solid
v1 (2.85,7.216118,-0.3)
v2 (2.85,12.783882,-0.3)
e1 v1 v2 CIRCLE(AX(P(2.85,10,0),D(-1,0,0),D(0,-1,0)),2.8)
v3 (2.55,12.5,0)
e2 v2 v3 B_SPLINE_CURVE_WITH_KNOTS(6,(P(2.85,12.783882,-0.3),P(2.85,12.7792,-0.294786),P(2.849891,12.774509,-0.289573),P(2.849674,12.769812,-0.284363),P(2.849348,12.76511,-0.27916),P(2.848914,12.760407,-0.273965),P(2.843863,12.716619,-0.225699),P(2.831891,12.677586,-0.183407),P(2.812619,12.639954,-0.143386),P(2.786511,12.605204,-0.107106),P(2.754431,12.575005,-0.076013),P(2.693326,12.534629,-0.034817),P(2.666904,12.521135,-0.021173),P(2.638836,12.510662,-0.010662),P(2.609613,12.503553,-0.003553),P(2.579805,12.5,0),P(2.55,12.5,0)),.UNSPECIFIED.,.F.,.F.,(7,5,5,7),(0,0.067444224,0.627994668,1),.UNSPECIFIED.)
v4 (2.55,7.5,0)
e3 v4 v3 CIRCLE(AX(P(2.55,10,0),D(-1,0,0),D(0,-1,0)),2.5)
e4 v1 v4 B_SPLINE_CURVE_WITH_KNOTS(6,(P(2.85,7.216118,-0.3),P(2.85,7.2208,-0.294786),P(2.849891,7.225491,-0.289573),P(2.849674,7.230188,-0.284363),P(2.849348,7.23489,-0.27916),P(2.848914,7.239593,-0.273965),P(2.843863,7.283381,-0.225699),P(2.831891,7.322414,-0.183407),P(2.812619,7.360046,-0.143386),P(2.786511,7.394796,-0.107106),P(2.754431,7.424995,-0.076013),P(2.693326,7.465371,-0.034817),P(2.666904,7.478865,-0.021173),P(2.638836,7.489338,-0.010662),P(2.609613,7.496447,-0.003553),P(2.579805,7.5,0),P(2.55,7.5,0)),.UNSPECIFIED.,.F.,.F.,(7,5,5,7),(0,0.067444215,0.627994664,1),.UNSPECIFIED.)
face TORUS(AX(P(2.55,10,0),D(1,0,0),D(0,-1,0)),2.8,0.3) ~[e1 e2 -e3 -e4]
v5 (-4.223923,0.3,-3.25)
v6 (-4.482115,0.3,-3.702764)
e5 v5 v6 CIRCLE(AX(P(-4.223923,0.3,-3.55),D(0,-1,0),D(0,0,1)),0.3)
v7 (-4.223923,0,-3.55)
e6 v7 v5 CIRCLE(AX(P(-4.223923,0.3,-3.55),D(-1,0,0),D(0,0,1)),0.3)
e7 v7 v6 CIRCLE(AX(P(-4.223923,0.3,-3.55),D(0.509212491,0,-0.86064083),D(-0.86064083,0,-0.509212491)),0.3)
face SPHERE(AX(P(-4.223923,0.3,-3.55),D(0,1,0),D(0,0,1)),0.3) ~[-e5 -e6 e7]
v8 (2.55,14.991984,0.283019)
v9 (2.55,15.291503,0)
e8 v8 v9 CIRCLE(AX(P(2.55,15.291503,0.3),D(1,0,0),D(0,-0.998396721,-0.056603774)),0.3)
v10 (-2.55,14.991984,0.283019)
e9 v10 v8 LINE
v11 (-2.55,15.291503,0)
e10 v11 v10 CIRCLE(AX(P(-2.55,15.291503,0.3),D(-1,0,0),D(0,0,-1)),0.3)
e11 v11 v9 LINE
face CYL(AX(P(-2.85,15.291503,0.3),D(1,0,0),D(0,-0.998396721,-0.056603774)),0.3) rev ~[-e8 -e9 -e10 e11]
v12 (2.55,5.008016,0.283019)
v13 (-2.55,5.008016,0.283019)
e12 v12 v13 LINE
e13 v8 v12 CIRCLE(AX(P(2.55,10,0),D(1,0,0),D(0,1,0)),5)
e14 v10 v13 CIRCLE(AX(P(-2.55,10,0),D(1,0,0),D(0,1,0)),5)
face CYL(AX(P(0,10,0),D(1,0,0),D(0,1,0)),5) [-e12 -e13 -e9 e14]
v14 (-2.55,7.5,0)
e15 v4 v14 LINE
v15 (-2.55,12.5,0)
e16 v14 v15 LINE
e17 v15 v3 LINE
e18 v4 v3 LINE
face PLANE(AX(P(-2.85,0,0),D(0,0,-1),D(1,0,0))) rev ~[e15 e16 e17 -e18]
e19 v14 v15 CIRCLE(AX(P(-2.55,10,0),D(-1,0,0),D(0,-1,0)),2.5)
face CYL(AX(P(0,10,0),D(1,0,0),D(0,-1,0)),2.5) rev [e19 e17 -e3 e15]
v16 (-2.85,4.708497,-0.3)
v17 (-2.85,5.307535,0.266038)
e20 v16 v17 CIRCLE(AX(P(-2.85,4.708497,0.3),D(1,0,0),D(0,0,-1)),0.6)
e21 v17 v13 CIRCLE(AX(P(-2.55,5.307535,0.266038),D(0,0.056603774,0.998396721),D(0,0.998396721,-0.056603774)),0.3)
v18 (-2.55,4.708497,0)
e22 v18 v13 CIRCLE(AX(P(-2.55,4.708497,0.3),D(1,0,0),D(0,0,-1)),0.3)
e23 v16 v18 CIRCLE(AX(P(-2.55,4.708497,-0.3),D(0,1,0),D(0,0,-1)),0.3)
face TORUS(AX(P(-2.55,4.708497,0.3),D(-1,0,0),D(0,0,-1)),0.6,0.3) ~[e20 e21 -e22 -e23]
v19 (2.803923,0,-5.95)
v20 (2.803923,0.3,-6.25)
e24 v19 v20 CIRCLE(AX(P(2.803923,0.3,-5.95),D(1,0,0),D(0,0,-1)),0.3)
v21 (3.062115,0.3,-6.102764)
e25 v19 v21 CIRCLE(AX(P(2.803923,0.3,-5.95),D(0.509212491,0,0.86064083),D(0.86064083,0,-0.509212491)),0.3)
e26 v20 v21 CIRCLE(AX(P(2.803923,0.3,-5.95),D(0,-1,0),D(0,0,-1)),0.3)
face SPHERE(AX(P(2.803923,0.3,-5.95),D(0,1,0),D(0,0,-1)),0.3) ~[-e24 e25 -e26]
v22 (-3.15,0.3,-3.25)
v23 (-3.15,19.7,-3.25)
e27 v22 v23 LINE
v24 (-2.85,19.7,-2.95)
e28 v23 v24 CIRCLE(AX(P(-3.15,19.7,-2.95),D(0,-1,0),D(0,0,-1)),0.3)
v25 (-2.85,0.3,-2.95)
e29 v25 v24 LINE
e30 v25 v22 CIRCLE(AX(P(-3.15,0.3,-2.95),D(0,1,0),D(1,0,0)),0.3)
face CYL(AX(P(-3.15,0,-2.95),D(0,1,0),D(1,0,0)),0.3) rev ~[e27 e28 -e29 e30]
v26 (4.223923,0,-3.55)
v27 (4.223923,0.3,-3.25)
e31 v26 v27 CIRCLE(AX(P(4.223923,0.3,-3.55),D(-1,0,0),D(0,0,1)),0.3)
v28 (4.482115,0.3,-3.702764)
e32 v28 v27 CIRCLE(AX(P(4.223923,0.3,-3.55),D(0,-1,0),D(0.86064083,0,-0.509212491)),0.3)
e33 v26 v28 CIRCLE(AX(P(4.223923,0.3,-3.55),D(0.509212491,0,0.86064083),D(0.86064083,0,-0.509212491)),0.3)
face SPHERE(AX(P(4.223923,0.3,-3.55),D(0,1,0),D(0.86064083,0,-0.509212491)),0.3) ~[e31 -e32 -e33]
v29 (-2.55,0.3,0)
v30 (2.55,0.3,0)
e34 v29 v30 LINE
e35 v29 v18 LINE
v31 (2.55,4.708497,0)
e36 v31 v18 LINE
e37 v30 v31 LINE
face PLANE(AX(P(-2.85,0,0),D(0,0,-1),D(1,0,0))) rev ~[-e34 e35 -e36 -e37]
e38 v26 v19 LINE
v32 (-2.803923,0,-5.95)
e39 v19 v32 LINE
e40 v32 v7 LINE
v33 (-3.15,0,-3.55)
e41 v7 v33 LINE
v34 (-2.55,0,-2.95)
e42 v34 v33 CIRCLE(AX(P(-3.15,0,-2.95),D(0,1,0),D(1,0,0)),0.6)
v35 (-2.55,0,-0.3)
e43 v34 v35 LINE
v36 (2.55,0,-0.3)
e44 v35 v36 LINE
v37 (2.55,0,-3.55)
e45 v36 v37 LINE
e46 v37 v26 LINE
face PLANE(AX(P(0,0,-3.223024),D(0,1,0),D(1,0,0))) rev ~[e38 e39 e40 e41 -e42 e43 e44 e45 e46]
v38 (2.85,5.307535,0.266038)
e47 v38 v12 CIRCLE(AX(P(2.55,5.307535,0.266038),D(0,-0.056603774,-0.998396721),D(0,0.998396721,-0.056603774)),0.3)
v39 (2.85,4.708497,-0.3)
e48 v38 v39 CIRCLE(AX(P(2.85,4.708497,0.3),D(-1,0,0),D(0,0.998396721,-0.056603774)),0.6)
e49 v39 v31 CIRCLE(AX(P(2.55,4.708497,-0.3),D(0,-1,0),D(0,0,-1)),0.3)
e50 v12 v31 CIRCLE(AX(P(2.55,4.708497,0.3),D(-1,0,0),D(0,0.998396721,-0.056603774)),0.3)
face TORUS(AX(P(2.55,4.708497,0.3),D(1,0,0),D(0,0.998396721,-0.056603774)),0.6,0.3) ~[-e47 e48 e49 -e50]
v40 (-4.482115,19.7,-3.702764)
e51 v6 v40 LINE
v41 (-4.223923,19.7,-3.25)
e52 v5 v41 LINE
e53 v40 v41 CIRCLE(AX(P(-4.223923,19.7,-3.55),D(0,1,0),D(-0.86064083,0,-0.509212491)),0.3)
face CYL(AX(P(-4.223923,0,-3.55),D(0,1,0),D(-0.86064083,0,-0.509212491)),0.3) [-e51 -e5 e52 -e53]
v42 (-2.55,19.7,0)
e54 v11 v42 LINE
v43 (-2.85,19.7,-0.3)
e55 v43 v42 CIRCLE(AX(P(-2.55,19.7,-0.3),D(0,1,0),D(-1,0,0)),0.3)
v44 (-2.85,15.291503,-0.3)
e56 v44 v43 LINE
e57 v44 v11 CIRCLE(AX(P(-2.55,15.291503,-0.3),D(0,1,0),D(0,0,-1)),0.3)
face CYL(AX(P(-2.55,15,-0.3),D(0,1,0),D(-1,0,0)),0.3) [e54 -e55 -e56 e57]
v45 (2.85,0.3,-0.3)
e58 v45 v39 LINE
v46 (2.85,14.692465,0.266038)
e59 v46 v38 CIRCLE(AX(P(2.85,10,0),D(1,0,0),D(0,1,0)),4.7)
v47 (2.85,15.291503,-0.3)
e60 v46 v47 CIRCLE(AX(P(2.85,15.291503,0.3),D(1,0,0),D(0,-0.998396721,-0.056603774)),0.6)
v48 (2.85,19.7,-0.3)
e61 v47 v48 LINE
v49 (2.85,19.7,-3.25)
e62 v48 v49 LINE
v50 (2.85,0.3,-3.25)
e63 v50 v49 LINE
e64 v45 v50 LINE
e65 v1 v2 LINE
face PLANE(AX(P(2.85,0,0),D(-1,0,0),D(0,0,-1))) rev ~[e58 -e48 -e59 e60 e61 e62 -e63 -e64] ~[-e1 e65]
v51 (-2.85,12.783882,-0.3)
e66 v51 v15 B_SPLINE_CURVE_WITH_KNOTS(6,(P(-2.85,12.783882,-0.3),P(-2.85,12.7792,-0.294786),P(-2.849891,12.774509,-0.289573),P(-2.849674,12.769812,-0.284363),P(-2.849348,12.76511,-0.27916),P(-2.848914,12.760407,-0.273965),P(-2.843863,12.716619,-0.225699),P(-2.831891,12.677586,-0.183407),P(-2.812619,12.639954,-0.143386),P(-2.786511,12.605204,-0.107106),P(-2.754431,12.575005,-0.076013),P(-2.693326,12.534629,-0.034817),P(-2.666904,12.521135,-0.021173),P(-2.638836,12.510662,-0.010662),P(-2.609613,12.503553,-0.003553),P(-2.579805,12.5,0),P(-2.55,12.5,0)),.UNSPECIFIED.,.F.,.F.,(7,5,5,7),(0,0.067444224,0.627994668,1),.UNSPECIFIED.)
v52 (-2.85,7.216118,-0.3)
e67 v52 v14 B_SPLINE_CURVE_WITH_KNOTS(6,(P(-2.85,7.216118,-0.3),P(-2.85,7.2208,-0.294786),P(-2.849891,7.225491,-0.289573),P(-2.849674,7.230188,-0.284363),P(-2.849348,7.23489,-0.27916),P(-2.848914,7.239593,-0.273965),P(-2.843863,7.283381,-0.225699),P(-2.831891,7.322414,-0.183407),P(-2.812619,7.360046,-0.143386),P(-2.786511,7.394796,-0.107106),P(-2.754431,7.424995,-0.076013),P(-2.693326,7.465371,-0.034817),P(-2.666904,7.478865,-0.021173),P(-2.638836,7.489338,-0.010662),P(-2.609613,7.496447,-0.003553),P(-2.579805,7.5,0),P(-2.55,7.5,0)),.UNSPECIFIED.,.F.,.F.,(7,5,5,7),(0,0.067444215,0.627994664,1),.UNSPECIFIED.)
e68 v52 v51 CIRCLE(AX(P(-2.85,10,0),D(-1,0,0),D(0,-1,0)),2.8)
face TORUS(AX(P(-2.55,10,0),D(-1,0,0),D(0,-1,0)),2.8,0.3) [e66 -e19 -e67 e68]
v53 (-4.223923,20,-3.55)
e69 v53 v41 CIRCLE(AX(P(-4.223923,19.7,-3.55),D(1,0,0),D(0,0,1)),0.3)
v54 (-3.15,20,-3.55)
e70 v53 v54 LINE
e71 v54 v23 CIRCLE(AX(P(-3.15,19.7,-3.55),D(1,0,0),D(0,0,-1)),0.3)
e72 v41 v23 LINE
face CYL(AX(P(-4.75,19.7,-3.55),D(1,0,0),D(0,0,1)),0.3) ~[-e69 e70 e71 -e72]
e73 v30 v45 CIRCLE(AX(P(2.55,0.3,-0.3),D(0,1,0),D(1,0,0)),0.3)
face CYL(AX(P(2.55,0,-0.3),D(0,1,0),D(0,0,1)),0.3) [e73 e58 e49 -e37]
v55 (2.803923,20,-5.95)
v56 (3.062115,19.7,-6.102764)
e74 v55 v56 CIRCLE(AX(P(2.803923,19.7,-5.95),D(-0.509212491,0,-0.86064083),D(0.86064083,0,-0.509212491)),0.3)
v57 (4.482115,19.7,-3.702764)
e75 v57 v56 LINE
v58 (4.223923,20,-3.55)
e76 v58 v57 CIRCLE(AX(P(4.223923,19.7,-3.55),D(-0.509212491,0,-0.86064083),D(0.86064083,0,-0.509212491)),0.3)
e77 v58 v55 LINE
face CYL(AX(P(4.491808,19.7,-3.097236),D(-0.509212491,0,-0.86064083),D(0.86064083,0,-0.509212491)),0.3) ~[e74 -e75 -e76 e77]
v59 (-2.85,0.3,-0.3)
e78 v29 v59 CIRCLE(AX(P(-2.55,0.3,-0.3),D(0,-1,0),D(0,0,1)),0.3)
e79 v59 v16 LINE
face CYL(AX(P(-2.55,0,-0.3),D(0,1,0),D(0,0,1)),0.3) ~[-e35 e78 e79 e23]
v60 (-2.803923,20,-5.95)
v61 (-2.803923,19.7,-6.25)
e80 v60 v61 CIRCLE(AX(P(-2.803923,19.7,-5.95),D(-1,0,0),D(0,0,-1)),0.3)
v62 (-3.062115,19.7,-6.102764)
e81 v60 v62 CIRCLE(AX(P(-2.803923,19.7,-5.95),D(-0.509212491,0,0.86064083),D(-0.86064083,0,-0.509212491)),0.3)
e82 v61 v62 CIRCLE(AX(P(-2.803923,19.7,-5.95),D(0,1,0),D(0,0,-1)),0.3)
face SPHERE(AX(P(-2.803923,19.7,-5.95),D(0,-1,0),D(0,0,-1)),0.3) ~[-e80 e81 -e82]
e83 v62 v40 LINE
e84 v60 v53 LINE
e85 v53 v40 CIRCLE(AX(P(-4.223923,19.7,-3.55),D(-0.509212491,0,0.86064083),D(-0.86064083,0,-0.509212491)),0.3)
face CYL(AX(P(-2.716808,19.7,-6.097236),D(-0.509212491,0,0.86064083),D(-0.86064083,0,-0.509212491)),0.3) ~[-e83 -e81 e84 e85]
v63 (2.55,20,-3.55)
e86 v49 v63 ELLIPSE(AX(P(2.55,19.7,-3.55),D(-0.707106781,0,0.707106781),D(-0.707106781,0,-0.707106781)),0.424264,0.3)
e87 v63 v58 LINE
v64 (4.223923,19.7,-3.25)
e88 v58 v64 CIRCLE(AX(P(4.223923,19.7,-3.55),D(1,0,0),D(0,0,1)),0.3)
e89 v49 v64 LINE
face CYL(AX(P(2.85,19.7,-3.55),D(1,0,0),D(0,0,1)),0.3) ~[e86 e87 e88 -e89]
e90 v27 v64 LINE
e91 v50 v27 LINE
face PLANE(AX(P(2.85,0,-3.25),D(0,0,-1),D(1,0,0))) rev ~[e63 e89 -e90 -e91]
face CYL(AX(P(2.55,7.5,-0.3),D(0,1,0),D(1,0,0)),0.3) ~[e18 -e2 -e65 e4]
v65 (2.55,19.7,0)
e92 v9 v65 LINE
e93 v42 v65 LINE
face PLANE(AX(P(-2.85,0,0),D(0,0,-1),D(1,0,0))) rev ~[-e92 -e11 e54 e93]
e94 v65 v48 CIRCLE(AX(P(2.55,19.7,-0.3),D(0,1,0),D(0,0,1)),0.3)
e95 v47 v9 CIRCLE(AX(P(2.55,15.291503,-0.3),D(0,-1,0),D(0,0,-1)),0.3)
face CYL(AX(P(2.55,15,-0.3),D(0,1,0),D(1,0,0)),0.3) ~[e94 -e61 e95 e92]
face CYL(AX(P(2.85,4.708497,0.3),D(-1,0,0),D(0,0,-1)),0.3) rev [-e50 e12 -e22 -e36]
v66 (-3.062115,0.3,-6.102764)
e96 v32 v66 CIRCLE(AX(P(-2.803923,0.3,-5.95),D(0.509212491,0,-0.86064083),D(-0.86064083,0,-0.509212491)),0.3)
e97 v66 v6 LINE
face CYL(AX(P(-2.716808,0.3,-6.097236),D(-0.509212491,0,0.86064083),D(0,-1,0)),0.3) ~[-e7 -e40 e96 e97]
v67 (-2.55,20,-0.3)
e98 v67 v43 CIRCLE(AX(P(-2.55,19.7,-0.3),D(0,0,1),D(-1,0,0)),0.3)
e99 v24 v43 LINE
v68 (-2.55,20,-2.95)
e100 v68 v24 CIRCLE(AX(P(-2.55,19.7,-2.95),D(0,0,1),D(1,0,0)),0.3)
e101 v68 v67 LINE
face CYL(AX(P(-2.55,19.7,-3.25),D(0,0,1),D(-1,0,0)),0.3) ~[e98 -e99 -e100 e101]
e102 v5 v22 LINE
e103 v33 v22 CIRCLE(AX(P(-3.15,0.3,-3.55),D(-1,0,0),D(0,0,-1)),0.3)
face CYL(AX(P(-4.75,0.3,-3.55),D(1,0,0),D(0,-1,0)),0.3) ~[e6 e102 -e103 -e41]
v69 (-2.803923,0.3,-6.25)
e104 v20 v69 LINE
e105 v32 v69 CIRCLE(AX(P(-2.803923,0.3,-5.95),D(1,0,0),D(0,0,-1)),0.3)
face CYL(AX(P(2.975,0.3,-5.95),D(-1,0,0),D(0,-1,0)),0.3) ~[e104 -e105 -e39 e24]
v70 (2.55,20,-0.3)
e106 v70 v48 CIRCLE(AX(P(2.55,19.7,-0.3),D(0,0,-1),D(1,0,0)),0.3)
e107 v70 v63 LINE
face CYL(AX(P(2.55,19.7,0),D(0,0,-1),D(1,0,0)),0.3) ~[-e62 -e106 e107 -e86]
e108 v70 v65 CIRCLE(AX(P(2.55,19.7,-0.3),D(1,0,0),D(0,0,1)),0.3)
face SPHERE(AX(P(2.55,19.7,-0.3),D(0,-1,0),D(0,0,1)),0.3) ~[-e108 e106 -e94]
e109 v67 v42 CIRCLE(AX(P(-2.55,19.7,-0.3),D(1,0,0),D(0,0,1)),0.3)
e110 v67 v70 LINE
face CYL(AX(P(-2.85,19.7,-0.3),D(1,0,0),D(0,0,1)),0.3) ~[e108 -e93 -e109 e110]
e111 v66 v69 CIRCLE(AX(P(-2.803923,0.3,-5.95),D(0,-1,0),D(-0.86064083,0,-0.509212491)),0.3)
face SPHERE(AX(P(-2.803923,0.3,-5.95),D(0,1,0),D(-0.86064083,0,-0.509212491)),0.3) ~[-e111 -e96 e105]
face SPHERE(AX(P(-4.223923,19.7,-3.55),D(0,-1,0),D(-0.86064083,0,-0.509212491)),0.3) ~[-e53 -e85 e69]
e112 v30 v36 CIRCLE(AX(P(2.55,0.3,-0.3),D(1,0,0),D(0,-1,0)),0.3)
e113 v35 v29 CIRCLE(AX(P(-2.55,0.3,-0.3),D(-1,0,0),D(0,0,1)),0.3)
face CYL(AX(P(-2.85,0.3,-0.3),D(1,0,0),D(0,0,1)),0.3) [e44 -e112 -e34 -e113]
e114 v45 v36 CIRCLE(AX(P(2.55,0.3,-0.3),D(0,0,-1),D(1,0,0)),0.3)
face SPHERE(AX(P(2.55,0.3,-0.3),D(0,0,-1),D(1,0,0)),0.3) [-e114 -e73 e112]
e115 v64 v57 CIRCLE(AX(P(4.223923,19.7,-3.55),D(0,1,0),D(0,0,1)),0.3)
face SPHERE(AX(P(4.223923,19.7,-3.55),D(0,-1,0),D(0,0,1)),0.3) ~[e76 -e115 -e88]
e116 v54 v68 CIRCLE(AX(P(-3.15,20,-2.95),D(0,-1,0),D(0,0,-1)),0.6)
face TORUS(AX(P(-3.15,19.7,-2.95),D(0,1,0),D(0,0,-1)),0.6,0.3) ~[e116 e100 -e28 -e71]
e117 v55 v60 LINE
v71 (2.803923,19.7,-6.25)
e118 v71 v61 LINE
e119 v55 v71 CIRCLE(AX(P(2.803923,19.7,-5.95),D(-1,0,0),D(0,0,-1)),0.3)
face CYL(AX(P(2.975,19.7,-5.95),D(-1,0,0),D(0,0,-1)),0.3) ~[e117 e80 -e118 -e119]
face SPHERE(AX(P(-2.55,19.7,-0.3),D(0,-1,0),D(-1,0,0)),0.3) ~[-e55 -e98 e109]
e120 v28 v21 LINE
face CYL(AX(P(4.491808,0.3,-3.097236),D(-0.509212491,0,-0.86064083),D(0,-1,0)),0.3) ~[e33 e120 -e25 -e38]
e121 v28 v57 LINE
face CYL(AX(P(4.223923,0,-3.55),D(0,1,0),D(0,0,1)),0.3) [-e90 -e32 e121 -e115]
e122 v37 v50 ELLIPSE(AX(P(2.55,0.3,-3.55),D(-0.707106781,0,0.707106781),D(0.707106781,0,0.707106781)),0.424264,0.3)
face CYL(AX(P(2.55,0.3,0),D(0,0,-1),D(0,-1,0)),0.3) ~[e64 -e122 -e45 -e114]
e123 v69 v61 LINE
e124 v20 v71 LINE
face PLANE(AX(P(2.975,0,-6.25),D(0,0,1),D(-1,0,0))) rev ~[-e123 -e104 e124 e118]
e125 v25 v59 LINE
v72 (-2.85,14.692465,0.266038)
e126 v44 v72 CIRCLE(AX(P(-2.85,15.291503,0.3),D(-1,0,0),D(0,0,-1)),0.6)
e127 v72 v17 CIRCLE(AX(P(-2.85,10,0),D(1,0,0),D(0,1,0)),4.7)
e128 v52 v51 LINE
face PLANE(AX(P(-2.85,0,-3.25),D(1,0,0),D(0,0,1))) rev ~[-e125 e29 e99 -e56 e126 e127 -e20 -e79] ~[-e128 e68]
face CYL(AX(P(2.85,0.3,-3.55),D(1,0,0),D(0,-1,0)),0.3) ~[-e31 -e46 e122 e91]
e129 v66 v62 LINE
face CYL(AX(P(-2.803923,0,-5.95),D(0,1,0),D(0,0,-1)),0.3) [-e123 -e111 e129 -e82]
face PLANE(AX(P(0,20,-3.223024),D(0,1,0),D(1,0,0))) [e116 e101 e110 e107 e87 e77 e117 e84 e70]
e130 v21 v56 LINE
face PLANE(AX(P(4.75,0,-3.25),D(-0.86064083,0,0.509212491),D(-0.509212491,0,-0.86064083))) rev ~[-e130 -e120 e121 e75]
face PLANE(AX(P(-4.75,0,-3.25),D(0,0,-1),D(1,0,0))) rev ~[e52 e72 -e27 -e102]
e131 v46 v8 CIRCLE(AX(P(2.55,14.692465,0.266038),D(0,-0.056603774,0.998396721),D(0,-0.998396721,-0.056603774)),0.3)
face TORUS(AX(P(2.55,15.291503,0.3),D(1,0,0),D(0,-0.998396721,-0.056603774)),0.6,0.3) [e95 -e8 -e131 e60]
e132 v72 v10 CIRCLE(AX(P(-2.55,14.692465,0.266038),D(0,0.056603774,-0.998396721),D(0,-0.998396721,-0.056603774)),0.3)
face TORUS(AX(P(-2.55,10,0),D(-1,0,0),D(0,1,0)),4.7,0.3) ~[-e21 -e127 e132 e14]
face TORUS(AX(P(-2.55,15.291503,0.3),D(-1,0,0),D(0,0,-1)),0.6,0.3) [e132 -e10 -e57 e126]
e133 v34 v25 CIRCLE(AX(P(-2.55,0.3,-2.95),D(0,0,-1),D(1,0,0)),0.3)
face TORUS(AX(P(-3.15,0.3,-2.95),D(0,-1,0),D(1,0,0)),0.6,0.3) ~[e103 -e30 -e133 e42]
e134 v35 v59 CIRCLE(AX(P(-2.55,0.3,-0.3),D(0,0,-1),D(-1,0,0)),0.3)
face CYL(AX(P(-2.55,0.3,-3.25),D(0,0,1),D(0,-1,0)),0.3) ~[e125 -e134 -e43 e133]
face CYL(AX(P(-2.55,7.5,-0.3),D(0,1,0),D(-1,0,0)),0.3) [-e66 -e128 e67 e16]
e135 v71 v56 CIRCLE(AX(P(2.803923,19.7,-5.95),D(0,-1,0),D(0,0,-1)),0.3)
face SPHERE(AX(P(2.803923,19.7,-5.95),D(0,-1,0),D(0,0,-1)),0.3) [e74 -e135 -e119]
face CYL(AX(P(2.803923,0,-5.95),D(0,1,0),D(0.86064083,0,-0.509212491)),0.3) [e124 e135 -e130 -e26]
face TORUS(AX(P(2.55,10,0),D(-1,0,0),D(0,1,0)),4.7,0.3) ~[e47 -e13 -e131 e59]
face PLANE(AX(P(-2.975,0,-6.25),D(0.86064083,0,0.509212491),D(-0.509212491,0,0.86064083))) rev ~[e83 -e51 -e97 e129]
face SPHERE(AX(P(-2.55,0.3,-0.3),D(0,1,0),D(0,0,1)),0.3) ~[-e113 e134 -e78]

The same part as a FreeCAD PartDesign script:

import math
import FreeCAD as App
import Part
import Sketcher
from FreeCAD import Vector


def edges_at(feature, points):
    """Names of the edges that pass closest to the given points."""
    edges = feature.Shape.Edges
    near = lambda p: min(range(len(edges)), key=lambda i: edges[i].distToShape(Part.Vertex(*p))[0])
    return sorted({f"Edge{near(p) + 1}" for p in points})

doc = App.newDocument("Part")
body = doc.addObject("PartDesign::Body", "Body")

# Sketch on XZ plane
sketch1 = body.newObject("Sketcher::SketchObject", "Sketch")
sketch1.AttachmentSupport = (doc.getObject("XZ_Plane"), [""])
sketch1.MapMode = "FlatFace"
sketch1.addGeometry([
    Part.LineSegment(Vector(-2.9, 0, 0), Vector(2.9, 0, 0)),  # 0
    Part.LineSegment(Vector(2.9, 0, 0), Vector(2.9, -3.2, 0)),  # 1
    Part.LineSegment(Vector(2.9, -3.2, 0), Vector(4.8, -3.2, 0)),  # 2
    Part.LineSegment(Vector(4.8, -3.2, 0), Vector(3, -6.2, 0)),  # 3
    Part.LineSegment(Vector(3, -6.2, 0), Vector(-3, -6.2, 0)),  # 4
    Part.LineSegment(Vector(-3, -6.2, 0), Vector(-4.8, -3.2, 0)),  # 5
    Part.LineSegment(Vector(-4.8, -3.2, 0), Vector(-2.9, -3.2, 0)),  # 6
    Part.LineSegment(Vector(-2.9, -3.2, 0), Vector(-2.9, 0, 0)),  # 7
], False)
sketch1.addConstraint([
    Sketcher.Constraint("Coincident", 0, 2, 1, 1),
    Sketcher.Constraint("Coincident", 1, 2, 2, 1),
    Sketcher.Constraint("Coincident", 2, 2, 3, 1),
    Sketcher.Constraint("Coincident", 3, 2, 4, 1),
    Sketcher.Constraint("Coincident", 4, 2, 5, 1),
    Sketcher.Constraint("Coincident", 5, 2, 6, 1),
    Sketcher.Constraint("Coincident", 6, 2, 7, 1),
    Sketcher.Constraint("Coincident", 7, 2, 0, 1),
    Sketcher.Constraint("Horizontal", 0),
    Sketcher.Constraint("Vertical", 1),
    Sketcher.Constraint("Horizontal", 2),
    Sketcher.Constraint("Horizontal", 4),
    Sketcher.Constraint("Horizontal", 6),
    Sketcher.Constraint("Vertical", 7),
    Sketcher.Constraint("Symmetric", 0, 2, 7, 2, -1, 1),
    Sketcher.Constraint("Symmetric", 2, 2, 5, 2, -2),
    Sketcher.Constraint("Equal", 3, 5),
    Sketcher.Constraint("DistanceX", 0, 1, 0, 2, 5.7),
    Sketcher.Constraint("DistanceX", 2, 1, 2, 2, 1.9),
    Sketcher.Constraint("DistanceY", 3, 2, 1, 2, 3.0),
    Sketcher.Constraint("DistanceX", 4, 2, 4, 1, 5.95),
    Sketcher.Constraint("DistanceY", 1, 2, 1, 1, 3.25),
])
pad1 = body.newObject("PartDesign::Pad", "Pad")
pad1.Profile = sketch1
pad1.Length = 20
pad1.Reversed = True

# Sketch on YZ plane
sketch2 = body.newObject("Sketcher::SketchObject", "Sketch001")
sketch2.AttachmentSupport = (doc.getObject("YZ_Plane"), [""])
sketch2.MapMode = "FlatFace"
sketch2.addGeometry([
    Part.ArcOfCircle(Part.Circle(Vector(10, 0, 0), Vector(0, 0, 1), 2.5), math.radians(0), math.radians(180)),
    Part.LineSegment(Vector(12.5, 0, 0), Vector(15, 0, 0)),
    Part.ArcOfCircle(Part.Circle(Vector(10, 0, 0), Vector(0, 0, 1), 5), math.radians(0), math.radians(180)),
    Part.LineSegment(Vector(5, 0, 0), Vector(7.5, 0, 0)),
], False)
sketch2.addConstraint([
    Sketcher.Constraint("Coincident", 0, 1, 1, 1),
    Sketcher.Constraint("Coincident", 1, 2, 2, 1),
    Sketcher.Constraint("Coincident", 2, 2, 3, 1),
    Sketcher.Constraint("Coincident", 3, 2, 0, 2),
    Sketcher.Constraint("Horizontal", 1),
    Sketcher.Constraint("Horizontal", 3),
    Sketcher.Constraint("Coincident", 2, 3, 0, 3),
    Sketcher.Constraint("PointOnObject", 0, 3, -1),
    Sketcher.Constraint("PointOnObject", 0, 1, -1),
    Sketcher.Constraint("PointOnObject", 2, 2, -1),
    Sketcher.Constraint("Radius", 2, 5.0),
    Sketcher.Constraint("Radius", 0, 2.5),
    Sketcher.Constraint("DistanceX", -1, 1, 0, 3, 10.0),
])
pad2 = body.newObject("PartDesign::Pad", "Pad001")
pad2.Profile = sketch2
pad2.Length = 5.7
pad2.Midplane = True
doc.recompute()

fillet = body.newObject("PartDesign::Fillet", "Fillet")
fillet.Base = (pad2, edges_at(pad2, [
    (0, 0, -6.25),
    (3.862, 0, -4.75),
    (3.8, 0, -3.25),
    (2.85, 0, -1.625),
    (3.862, 20, -4.75),
    (2.85, 17.5, 0),
    (-2.85, 17.5, 0),
    (-2.85, 10, -3.25),
    (-4.75, 10, -3.25),
    (-2.975, 10, -6.25),
    (2.975, 10, -6.25),
    (4.75, 10, -3.25),
    (0, 20, -6.25),
    (-3.862, 20, -4.75),
    (2.85, 10, 0),
    (-3.8, 20, -3.25),
    (2.85, 2.5, 0),
    (-2.85, 10, 0),
    (-2.85, 2.5, 0),
    (2.85, 10, 2.5),
    (-2.85, 20, -1.625),
    (-2.85, 10, 5),
    (0, 15, 0),
    (0, 5, 0),
    (2.85, 10, 5),
    (-2.85, 10, 2.5),
    (0, 20, 0),
    (2.85, 20, -1.625),
    (0, 0, 0),
    (3.8, 20, -3.25),
    (-2.85, 0, -1.625),
    (-3.8, 0, -3.25),
    (-3.862, 0, -4.75),
]))
fillet.Radius = 0.3

doc.recompute()
